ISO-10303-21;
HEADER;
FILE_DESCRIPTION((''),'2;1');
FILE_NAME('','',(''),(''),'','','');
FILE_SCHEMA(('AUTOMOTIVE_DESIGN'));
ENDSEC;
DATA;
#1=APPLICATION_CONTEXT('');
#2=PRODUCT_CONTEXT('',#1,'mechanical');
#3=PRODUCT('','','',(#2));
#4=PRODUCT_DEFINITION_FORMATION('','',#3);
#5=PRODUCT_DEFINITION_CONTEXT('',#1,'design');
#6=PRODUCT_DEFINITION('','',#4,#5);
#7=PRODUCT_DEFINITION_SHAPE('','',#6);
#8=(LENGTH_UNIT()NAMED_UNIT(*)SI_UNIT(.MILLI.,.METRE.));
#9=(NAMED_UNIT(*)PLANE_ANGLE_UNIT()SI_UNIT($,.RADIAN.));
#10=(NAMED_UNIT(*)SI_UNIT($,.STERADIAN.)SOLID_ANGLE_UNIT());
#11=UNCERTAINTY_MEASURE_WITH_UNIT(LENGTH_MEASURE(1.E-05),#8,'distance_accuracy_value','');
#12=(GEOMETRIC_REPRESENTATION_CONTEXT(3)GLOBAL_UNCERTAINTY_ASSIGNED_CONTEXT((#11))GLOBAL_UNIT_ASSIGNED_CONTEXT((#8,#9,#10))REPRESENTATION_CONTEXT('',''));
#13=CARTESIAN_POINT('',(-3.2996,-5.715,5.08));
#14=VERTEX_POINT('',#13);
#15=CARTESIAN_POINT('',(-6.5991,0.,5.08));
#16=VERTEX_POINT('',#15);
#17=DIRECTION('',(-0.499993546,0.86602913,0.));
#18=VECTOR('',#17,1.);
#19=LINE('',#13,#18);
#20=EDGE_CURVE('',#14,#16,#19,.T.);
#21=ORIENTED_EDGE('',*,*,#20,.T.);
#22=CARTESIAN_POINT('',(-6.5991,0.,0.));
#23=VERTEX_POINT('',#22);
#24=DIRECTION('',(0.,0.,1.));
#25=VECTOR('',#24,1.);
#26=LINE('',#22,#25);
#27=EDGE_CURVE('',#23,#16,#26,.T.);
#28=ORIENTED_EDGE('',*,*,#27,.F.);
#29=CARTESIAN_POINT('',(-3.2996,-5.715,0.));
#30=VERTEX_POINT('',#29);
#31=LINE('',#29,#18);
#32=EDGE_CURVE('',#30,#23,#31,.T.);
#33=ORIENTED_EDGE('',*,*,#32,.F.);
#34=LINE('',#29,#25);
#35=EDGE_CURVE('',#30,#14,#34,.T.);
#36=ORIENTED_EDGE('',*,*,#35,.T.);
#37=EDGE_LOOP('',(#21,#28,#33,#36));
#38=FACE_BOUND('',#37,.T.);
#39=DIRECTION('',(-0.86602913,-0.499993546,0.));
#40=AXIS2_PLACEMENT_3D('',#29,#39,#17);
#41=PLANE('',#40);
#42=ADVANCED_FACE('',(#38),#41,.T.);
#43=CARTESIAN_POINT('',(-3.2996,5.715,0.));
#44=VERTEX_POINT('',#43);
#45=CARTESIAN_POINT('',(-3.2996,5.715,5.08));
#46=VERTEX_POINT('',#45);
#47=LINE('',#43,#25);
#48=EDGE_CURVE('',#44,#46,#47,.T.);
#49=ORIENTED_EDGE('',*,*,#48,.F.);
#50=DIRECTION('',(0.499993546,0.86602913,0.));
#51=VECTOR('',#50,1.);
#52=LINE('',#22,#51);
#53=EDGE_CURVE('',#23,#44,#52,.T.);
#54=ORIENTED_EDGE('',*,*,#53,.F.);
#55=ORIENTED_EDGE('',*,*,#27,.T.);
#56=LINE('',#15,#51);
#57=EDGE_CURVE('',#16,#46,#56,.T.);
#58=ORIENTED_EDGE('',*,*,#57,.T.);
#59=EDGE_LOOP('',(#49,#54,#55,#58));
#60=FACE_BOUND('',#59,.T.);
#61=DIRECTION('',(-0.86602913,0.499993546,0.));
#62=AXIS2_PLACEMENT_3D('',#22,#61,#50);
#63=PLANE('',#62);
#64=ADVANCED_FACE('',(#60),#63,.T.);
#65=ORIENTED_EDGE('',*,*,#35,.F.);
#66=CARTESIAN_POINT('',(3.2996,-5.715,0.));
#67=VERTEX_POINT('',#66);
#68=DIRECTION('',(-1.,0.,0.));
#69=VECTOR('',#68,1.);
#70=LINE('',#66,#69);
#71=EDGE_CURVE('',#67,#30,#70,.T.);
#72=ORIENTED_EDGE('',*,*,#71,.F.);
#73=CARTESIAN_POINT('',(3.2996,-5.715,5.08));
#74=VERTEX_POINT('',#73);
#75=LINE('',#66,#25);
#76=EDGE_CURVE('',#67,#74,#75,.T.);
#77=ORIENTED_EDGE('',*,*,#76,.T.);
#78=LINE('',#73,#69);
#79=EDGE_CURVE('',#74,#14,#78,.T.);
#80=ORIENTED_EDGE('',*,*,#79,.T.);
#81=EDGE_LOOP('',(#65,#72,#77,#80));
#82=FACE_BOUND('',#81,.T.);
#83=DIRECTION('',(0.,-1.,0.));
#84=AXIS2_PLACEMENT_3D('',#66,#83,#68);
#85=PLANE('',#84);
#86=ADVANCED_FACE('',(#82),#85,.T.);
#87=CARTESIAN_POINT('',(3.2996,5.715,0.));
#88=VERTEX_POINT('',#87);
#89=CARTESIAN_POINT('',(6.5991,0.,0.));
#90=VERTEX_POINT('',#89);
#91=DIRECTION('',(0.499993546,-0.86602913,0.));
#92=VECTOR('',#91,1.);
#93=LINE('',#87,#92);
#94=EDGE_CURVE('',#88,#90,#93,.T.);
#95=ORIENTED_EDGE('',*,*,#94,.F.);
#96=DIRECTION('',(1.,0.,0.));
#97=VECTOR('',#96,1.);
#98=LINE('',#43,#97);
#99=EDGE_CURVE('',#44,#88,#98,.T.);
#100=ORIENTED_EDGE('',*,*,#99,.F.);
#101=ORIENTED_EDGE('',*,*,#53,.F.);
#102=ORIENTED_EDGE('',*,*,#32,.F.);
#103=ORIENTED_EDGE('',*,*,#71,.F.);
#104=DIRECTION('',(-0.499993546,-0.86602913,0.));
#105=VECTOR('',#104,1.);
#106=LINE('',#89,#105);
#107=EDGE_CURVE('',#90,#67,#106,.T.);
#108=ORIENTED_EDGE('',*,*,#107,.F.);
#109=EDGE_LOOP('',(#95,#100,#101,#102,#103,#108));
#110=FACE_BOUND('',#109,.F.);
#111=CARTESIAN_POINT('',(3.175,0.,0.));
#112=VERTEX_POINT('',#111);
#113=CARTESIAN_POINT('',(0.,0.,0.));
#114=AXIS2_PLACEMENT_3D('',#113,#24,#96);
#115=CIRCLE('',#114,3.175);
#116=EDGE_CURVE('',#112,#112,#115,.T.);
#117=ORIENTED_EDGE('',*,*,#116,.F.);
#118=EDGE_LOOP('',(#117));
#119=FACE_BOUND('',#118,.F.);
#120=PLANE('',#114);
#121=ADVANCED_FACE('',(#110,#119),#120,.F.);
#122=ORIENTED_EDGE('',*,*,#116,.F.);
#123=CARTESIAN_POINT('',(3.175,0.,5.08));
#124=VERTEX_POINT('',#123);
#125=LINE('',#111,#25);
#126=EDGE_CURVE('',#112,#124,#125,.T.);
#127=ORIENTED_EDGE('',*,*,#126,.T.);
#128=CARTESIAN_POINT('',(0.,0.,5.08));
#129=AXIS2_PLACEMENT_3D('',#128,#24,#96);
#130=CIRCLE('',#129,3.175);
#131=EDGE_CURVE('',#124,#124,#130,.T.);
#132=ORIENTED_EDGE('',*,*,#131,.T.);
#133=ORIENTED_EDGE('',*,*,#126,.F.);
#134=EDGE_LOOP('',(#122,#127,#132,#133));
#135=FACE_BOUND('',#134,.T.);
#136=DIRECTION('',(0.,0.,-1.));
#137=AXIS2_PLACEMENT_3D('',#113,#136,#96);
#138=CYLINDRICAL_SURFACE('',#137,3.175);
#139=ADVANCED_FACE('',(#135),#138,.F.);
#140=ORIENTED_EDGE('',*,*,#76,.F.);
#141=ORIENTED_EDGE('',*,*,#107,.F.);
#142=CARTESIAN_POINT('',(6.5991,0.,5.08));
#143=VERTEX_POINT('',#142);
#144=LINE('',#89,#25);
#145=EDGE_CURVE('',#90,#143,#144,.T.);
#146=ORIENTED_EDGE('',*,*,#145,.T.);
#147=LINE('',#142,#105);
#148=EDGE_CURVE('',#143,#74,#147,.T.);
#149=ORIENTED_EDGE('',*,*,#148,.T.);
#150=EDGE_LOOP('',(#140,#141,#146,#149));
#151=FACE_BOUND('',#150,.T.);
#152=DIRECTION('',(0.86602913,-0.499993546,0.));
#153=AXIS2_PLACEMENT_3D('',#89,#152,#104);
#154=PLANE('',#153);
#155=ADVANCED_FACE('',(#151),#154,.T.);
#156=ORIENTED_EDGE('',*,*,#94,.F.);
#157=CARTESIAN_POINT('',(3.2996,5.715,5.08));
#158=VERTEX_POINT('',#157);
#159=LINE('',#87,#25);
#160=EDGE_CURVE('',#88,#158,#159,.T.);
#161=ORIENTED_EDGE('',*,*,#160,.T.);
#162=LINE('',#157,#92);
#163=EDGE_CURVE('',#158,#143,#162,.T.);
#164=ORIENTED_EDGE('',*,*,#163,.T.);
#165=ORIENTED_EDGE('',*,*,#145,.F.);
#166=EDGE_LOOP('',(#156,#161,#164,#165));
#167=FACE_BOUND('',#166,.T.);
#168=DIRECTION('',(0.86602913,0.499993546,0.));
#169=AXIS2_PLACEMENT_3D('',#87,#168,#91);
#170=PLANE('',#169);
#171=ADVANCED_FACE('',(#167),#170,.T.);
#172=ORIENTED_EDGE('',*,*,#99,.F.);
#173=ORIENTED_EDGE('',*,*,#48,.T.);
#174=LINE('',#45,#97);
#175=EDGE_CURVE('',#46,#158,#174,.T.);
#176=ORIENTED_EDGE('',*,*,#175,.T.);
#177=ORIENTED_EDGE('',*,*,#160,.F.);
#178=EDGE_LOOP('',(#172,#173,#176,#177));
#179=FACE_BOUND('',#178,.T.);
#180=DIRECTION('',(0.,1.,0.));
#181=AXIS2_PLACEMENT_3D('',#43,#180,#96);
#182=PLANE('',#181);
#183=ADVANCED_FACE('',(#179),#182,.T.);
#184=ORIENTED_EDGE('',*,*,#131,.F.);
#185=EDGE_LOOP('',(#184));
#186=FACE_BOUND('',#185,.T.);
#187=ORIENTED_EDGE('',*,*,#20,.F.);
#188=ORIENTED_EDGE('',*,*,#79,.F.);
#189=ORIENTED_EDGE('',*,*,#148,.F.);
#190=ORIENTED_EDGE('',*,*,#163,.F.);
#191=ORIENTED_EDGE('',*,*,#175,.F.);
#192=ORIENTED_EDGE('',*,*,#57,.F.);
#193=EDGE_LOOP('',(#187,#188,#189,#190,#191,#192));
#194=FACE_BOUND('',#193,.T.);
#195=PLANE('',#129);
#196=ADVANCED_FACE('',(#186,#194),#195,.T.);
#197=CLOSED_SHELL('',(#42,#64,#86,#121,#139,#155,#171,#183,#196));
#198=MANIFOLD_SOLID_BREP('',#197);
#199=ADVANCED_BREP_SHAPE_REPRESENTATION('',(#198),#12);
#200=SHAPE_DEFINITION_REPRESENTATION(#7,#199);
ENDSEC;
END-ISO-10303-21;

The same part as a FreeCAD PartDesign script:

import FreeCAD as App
import Part
import Sketcher
Q = App.Units.Quantity


def add_polygon(sketch, points):
    """Adds a closed chain of lines whose ends are joined by coincident constraints."""
    first, n = sketch.GeometryCount, len(points)
    for a, b in zip(points, points[1:] + points[:1]):
        sketch.addGeometry(Part.LineSegment(App.Vector(*a, 0), App.Vector(*b, 0)), False)
    for i in range(n):
        sketch.addConstraint(Sketcher.Constraint("Coincident", first + i, 2, first + (i + 1) % n, 1))

doc = App.newDocument("Part")
body = doc.addObject("PartDesign::Body", "Body")

sketch1 = body.newObject("Sketcher::SketchObject", "Sketch")
sketch1.AttachmentSupport = (doc.getObject("XY_Plane"), [""])
sketch1.MapMode = "FlatFace"
add_polygon(sketch1, [(6.6, 0), (3.3, 5.7), (-3.3, 5.7), (-6.6, 0), (-3.3, -5.7), (3.3, -5.7)])
sketch1.addGeometry(Part.Circle(App.Vector(0, 0, 0), App.Vector(0, 0, 1), 3.2), False)
sketch1.addConstraint(Sketcher.Constraint("Horizontal", 1))
sketch1.addConstraint(Sketcher.Constraint("Horizontal", 4))
sketch1.addConstraint(Sketcher.Constraint("Coincident", 6, 3, -1, 1))
sketch1.addConstraint(Sketcher.Constraint("Symmetric", 0, 2, 3, 2, -1, 1))
sketch1.addConstraint(Sketcher.Constraint("Symmetric", 2, 2, 5, 2, -1, 1))
sketch1.addConstraint(Sketcher.Constraint("PointOnObject", 2, 2, -1))
sketch1.addConstraint(Sketcher.Constraint("Parallel", 2, 5))
sketch1.addConstraint(Sketcher.Constraint("Vertical", 1, 2, 3, 2))
sketch1.addConstraint(Sketcher.Constraint("Diameter", 6, Q("0.25 in")))
sketch1.addConstraint(Sketcher.Constraint("DistanceY", 3, 2, 1, 2, Q("0.45 in")))
sketch1.addConstraint(Sketcher.Constraint("Angle", 0, Q("119.9996 deg")))
sketch1.addConstraint(Sketcher.Constraint("DistanceX", 1, 2, 1, 1, Q("0.2598 in")))
pad1 = body.newObject("PartDesign::Pad", "Pad")
pad1.Profile = sketch1
pad1.Length = Q("0.2 in")

doc.recompute()
